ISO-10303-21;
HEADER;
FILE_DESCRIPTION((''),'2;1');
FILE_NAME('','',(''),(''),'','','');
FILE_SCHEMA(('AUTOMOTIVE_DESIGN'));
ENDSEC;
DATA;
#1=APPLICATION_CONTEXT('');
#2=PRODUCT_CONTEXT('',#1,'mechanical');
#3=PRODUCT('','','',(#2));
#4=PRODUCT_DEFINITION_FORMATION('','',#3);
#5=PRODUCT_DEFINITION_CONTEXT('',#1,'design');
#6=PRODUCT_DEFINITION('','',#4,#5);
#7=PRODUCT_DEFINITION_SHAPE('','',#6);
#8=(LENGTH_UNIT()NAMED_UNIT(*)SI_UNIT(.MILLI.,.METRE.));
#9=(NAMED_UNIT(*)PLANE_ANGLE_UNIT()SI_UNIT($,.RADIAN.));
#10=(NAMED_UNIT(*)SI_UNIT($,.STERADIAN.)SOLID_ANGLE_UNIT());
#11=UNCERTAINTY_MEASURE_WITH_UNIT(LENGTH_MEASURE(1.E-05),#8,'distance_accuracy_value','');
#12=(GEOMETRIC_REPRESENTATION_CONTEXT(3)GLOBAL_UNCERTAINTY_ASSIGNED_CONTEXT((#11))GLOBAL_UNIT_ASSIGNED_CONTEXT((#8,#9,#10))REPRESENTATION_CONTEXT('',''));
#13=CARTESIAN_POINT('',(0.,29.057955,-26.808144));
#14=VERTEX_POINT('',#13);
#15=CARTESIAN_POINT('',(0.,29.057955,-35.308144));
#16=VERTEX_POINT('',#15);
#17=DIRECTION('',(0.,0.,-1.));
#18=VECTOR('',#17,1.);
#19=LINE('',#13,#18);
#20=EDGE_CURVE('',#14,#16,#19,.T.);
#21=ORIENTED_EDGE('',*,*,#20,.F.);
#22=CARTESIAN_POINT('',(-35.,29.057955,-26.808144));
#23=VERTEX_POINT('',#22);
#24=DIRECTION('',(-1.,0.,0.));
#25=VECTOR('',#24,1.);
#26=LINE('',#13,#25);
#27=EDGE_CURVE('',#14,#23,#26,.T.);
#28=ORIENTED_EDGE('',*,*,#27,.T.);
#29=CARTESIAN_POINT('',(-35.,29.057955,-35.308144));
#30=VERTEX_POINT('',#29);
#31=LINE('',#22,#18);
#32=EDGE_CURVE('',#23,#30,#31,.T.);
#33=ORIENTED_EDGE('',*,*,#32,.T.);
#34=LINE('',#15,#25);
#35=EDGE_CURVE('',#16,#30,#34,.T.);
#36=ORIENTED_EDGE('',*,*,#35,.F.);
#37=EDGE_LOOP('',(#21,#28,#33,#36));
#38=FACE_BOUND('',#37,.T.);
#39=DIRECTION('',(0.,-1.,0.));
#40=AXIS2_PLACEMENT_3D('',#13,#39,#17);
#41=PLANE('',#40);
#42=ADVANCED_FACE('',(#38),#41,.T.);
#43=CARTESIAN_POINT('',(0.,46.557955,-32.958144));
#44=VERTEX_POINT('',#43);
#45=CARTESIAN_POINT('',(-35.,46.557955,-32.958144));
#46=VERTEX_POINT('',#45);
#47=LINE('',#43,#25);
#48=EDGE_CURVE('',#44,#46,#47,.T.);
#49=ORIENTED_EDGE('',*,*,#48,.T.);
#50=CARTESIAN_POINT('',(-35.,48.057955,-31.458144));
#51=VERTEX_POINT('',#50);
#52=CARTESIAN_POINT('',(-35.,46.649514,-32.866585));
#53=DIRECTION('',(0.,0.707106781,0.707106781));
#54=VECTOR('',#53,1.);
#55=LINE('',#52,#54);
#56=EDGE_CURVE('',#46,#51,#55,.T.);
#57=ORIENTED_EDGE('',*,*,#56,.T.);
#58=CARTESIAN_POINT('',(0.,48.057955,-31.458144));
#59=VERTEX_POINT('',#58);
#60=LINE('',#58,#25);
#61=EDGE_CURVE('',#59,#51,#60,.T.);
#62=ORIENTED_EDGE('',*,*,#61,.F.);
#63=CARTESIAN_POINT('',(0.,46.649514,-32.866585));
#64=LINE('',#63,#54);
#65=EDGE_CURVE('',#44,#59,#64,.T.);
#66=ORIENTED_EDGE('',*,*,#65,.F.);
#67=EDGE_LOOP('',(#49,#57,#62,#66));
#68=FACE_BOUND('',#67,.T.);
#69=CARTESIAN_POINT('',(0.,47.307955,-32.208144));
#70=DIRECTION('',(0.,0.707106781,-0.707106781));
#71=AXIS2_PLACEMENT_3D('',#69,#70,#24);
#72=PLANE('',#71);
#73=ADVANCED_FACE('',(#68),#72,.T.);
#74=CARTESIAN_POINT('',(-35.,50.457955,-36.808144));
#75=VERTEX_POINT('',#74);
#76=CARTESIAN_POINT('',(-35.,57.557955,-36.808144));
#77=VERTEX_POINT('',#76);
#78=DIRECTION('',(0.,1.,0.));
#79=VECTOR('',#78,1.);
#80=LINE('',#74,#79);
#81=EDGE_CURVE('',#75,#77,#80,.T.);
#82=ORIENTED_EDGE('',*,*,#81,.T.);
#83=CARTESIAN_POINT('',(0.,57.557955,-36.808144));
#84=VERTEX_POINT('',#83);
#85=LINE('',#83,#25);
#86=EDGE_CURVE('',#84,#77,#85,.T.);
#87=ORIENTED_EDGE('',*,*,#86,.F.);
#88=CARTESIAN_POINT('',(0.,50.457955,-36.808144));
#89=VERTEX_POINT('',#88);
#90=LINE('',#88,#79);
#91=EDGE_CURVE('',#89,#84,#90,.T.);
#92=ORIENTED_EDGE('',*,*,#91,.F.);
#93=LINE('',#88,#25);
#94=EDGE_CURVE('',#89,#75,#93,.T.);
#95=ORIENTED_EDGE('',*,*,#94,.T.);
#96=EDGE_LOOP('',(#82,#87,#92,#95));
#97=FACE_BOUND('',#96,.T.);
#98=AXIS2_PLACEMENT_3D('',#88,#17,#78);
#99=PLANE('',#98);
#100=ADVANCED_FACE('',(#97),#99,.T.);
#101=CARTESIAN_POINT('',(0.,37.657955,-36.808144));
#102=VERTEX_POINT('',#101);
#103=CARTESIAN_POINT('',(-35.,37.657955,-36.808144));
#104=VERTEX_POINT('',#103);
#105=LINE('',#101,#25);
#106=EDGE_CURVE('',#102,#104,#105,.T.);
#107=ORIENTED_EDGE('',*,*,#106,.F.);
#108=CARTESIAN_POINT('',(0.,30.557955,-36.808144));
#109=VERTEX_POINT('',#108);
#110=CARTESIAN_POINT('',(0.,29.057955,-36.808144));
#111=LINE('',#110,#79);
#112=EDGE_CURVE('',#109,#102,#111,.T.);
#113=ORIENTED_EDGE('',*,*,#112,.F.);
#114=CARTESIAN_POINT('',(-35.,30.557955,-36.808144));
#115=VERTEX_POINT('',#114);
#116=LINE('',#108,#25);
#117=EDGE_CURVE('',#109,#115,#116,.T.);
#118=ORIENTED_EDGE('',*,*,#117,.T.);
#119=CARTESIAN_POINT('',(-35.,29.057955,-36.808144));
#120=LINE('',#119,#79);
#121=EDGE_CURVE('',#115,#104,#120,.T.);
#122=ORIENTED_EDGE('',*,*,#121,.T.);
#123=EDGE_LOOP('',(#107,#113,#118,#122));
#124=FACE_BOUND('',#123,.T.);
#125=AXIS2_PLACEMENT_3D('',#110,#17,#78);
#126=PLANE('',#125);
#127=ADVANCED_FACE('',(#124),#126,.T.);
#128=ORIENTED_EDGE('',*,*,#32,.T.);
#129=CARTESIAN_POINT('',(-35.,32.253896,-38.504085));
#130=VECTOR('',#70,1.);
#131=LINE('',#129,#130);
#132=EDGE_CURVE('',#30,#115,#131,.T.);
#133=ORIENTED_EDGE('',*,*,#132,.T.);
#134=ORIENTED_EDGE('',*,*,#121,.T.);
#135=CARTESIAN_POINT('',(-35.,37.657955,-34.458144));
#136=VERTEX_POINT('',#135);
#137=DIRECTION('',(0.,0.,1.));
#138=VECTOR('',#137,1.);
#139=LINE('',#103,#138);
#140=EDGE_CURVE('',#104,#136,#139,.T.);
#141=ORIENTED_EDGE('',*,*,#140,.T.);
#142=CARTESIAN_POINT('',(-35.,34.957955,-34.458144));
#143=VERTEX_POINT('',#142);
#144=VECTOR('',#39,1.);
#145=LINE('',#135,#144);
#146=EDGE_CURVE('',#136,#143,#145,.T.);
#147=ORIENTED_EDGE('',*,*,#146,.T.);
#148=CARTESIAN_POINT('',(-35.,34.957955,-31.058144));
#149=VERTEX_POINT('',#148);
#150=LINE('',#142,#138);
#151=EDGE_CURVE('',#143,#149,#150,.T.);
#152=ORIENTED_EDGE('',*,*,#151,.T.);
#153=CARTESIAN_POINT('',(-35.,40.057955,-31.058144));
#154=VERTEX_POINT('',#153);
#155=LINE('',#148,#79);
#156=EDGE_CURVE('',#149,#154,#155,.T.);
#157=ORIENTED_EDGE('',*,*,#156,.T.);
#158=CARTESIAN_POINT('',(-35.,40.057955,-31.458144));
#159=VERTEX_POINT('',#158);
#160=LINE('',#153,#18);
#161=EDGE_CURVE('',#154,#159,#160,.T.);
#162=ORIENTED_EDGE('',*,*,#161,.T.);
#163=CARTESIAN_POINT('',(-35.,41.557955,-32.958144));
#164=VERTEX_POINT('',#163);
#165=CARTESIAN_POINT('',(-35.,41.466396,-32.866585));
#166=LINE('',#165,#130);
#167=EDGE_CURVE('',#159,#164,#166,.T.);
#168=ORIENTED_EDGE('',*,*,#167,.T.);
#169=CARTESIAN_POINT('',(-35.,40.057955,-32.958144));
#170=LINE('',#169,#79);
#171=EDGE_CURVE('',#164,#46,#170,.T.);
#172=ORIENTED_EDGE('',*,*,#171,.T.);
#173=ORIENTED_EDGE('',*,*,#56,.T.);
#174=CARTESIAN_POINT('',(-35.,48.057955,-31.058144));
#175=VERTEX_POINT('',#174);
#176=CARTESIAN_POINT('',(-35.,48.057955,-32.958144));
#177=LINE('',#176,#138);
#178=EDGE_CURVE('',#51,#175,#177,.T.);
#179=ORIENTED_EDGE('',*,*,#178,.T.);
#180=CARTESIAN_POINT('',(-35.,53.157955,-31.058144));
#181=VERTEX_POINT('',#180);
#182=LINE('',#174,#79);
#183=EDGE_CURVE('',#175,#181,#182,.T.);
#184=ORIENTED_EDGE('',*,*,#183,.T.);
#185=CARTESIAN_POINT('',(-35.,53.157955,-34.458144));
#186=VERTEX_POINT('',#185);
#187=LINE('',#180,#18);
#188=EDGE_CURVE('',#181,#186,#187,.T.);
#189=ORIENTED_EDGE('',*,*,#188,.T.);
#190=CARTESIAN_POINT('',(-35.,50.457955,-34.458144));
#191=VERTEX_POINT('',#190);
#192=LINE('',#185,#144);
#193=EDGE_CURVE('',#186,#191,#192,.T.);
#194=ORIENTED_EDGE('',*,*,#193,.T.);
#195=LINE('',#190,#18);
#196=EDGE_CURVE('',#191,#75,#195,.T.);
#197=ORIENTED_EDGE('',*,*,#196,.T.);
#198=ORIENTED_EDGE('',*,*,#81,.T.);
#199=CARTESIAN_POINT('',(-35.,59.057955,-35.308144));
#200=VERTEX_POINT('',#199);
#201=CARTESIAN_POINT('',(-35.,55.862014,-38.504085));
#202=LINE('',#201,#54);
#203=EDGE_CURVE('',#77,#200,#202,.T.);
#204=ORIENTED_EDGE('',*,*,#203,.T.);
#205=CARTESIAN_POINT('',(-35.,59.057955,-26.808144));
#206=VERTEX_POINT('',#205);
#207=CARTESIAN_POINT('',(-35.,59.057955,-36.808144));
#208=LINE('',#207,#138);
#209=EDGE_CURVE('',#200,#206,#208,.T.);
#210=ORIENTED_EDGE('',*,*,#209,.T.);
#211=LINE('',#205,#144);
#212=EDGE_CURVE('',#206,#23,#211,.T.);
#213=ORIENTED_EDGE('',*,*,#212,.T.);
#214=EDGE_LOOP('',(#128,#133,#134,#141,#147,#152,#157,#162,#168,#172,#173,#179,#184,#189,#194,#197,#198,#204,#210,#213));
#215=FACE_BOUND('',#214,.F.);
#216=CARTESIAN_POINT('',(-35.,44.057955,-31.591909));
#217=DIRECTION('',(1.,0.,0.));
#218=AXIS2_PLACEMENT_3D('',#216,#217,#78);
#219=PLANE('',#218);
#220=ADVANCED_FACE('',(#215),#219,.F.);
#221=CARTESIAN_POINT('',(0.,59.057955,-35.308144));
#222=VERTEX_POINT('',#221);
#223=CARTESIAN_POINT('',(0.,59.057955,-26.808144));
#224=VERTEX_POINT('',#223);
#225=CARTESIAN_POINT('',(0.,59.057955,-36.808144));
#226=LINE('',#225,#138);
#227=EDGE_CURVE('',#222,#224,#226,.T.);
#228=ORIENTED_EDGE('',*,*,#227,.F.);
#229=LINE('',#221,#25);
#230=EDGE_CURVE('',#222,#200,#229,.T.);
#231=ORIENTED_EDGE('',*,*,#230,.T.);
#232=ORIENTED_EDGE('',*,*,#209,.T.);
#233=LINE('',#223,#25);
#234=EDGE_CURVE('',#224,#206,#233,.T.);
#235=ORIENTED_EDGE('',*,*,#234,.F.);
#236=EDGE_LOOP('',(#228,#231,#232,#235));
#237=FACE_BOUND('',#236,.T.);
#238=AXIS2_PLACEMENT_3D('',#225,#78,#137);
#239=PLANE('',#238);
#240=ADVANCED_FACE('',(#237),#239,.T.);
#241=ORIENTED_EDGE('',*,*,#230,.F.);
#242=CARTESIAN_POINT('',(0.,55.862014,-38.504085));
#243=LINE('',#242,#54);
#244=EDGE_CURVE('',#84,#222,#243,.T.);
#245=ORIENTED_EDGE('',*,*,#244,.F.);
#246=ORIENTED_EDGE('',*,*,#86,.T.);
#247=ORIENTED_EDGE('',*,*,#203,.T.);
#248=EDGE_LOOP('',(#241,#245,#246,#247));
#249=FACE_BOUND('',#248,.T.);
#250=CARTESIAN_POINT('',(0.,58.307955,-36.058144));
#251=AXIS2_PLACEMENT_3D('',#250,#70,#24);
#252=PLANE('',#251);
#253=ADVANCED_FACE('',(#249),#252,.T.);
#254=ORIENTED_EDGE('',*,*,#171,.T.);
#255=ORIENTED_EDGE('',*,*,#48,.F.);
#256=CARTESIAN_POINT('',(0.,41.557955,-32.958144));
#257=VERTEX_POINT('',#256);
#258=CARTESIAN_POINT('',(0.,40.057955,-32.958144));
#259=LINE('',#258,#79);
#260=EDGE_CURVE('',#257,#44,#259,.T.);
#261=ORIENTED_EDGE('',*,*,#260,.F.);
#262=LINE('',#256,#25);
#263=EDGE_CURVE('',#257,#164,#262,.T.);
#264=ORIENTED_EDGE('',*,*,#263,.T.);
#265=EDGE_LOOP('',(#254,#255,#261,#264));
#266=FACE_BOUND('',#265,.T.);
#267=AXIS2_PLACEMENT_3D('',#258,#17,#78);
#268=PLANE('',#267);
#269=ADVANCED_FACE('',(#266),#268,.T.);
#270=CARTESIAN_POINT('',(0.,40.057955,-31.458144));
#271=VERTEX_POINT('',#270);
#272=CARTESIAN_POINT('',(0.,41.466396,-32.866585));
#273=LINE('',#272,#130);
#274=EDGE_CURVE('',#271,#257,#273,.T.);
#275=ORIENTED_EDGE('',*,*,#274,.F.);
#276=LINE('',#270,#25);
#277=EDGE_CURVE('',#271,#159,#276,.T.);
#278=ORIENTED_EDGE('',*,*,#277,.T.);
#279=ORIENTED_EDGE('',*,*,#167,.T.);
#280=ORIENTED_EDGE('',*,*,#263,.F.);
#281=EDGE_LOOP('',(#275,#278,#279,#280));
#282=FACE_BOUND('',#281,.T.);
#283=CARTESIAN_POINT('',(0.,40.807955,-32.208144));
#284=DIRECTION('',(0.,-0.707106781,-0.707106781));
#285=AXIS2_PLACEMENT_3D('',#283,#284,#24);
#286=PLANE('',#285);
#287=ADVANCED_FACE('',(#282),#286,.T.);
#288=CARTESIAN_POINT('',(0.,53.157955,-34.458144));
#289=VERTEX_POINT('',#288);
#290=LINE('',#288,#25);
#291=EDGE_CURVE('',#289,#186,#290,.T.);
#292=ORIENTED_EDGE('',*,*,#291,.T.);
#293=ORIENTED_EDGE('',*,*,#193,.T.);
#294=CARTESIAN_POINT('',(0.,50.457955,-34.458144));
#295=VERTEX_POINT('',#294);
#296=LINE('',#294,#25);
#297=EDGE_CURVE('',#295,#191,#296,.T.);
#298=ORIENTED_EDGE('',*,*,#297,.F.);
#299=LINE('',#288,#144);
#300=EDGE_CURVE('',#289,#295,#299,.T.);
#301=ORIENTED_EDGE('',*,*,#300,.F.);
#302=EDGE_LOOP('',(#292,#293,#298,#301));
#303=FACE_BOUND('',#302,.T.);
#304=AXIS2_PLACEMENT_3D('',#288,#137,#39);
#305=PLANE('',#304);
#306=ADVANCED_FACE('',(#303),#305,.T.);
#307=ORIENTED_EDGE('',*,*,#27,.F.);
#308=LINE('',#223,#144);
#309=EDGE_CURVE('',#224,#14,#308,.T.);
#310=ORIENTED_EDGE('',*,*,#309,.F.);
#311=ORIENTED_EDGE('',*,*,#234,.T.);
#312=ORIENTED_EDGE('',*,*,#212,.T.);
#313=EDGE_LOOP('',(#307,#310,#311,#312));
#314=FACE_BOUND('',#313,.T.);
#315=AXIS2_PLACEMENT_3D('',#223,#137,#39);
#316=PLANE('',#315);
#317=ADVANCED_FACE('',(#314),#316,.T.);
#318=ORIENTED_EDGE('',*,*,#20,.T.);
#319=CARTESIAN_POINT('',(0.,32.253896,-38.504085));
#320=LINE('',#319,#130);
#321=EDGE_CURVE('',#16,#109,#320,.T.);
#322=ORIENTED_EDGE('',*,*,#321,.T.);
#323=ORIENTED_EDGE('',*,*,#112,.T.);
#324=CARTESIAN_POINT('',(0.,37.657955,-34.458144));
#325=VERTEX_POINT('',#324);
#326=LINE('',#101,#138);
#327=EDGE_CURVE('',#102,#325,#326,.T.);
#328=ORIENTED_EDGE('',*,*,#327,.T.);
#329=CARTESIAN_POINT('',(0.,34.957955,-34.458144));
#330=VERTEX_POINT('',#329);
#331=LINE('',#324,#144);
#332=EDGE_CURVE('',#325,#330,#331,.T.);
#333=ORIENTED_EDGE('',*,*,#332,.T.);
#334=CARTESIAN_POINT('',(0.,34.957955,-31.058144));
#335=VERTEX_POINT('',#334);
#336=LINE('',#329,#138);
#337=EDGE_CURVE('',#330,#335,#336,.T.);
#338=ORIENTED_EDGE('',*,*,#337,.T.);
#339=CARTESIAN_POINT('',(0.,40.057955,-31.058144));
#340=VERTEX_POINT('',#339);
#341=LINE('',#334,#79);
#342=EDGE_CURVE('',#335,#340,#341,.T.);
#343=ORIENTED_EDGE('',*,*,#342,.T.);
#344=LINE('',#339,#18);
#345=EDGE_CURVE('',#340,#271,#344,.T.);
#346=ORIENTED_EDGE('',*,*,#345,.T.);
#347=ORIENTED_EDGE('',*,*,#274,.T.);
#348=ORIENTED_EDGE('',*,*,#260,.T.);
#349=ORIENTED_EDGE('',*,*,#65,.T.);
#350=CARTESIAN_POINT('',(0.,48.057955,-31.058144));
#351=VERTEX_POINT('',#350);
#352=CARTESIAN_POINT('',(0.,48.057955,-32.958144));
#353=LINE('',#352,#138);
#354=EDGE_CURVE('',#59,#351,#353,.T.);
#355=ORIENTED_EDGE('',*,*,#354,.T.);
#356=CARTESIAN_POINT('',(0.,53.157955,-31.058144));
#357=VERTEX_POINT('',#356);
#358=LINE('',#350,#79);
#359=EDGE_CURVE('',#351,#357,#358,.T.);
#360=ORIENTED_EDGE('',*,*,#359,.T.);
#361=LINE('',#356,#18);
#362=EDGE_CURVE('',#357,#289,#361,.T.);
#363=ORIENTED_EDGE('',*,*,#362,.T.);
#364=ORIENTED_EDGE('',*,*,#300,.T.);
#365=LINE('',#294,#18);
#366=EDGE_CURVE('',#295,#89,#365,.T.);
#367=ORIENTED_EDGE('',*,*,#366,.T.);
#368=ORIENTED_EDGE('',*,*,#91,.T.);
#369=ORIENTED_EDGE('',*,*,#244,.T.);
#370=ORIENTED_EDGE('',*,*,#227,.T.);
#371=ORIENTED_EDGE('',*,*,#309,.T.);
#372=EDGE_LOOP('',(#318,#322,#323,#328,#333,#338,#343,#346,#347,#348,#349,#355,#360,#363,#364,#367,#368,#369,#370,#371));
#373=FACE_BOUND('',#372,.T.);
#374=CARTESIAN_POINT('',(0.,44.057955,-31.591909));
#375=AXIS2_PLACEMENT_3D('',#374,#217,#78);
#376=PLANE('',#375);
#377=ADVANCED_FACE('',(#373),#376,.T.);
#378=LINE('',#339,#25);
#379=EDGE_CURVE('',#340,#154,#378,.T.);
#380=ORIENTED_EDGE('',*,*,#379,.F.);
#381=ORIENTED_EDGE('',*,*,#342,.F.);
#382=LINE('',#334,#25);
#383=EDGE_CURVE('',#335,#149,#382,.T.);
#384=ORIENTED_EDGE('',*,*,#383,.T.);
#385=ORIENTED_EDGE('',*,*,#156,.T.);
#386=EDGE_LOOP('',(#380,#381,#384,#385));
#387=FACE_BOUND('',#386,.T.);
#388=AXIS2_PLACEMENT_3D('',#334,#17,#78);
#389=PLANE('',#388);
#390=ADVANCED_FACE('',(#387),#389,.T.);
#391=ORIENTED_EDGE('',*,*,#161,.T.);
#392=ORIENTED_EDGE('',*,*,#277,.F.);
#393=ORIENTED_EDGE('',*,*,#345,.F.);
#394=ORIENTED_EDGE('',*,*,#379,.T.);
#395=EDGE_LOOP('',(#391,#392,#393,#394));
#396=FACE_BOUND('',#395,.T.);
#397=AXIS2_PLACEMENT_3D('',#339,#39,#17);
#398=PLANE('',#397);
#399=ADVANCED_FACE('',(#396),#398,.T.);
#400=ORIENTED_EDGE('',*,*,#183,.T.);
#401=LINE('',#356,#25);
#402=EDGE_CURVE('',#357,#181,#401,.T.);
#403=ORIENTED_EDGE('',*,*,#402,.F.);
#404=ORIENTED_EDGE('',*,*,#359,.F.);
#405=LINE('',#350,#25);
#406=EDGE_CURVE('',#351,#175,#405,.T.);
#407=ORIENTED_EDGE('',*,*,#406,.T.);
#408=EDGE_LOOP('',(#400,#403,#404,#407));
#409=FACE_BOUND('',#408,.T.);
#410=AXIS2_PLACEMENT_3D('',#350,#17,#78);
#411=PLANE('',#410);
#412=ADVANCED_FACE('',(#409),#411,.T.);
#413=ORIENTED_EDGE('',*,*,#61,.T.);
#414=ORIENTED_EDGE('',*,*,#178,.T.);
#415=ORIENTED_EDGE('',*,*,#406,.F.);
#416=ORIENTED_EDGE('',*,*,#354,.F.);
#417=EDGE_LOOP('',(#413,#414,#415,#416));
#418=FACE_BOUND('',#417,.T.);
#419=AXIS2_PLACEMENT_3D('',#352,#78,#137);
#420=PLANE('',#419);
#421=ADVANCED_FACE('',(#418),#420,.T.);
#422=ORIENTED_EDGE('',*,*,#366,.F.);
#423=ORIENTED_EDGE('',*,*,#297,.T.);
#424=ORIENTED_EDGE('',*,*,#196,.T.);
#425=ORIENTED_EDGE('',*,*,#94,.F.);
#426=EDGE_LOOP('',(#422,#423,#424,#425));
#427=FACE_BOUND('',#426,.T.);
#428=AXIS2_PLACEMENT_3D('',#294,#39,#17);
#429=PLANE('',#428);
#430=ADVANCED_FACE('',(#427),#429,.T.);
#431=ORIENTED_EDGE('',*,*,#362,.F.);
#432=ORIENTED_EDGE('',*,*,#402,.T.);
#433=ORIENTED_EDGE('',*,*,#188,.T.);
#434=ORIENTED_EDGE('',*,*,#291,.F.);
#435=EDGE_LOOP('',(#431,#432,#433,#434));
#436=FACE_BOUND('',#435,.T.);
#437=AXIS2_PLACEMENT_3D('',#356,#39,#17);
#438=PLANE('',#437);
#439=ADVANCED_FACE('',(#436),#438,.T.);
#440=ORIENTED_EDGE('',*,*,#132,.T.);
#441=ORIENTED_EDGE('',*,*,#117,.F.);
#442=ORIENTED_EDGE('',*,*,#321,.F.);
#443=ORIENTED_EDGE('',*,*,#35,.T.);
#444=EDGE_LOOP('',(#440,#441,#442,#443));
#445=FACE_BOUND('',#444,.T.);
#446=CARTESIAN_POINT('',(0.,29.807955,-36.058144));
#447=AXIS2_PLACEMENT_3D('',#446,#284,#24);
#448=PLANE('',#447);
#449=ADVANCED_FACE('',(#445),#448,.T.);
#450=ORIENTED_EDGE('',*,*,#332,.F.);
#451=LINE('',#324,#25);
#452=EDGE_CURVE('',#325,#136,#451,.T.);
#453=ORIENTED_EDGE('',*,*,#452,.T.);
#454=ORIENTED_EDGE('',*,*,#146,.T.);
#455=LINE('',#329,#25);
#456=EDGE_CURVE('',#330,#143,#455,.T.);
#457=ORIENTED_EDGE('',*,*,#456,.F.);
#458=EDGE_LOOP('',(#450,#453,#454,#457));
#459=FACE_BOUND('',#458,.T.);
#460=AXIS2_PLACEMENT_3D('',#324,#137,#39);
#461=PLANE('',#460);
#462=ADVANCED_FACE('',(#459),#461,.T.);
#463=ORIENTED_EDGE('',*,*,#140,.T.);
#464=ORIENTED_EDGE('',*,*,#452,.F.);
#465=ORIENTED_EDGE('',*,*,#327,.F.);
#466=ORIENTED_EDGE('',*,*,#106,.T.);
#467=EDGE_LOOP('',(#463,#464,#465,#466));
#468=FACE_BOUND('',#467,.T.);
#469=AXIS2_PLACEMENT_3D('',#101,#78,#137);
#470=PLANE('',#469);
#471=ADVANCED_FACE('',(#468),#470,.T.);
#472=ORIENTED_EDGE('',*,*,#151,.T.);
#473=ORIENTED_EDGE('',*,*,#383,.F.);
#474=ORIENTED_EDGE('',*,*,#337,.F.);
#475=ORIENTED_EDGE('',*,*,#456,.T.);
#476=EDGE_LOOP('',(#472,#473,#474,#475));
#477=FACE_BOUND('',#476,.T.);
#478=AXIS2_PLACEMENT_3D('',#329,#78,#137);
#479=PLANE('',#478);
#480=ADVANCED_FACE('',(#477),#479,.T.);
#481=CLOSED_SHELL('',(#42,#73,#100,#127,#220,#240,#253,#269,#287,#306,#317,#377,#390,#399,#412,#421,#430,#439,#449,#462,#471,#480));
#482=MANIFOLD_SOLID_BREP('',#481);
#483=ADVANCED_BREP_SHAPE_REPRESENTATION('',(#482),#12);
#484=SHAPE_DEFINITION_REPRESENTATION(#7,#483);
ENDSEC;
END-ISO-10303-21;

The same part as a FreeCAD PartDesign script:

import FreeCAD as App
import Part
import Sketcher


def edges_at(feature, points):
    """Names of the edges that pass closest to the given points."""
    edges = feature.Shape.Edges
    near = lambda p: min(range(len(edges)), key=lambda i: edges[i].distToShape(Part.Vertex(*p))[0])
    return sorted({f"Edge{near(p) + 1}" for p in points})


def add_polygon(sketch, points):
    """Adds a closed chain of lines whose ends are joined by coincident constraints."""
    first, n = sketch.GeometryCount, len(points)
    for a, b in zip(points, points[1:] + points[:1]):
        sketch.addGeometry(Part.LineSegment(App.Vector(*a, 0), App.Vector(*b, 0)), False)
    for i in range(n):
        sketch.addConstraint(Sketcher.Constraint("Coincident", first + i, 2, first + (i + 1) % n, 1))

doc = App.newDocument("Part")
params = doc.addObject("Spreadsheet::Sheet", "Params")
for row, (alias, value) in enumerate([
    ("sketch1_width", "8 mm"),
    ("sketch1_width2", "30 mm"),
    ("sketch1_height", "10 mm"),
    ("sketch1_width3", "8.6 mm"),
    ("sketch1_width4", "2.7 mm"),
    ("pad1_length", "35 mm"),
    ("chamfer_size", "1.5 mm"),
], start=1):
    params.set(f"A{row}", alias)
    params.set(f"B{row}", "=" + value)
    params.setAlias(f"B{row}", alias)

body = doc.addObject("PartDesign::Body", "Body")

# Sketch on YZ plane
sketch1 = body.newObject("Sketcher::SketchObject", "Sketch")
sketch1.AttachmentSupport = (doc.getObject("YZ_Plane"), [""])
sketch1.MapMode = "FlatFace"
add_polygon(sketch1, [(29.1, -26.8), (29.1, -36.8), (37.7, -36.8), (37.7, -34.5), (35, -34.5), (35, -31.1), (40.1, -31.1), (40.1, -33), (48.1, -33), (48.1, -31.1), (53.2, -31.1), (53.2, -34.5), (50.5, -34.5), (50.5, -36.8), (59.1, -36.8), (59.1, -26.8)])  # lines 0-15
sketch1.addConstraint(Sketcher.Constraint("Vertical", 0))
sketch1.addConstraint(Sketcher.Constraint("Horizontal", 1))
sketch1.addConstraint(Sketcher.Constraint("Vertical", 2))
sketch1.addConstraint(Sketcher.Constraint("Horizontal", 3))
sketch1.addConstraint(Sketcher.Constraint("Vertical", 4))
sketch1.addConstraint(Sketcher.Constraint("Horizontal", 5))
sketch1.addConstraint(Sketcher.Constraint("Vertical", 6))
sketch1.addConstraint(Sketcher.Constraint("Horizontal", 7))
sketch1.addConstraint(Sketcher.Constraint("Vertical", 8))
sketch1.addConstraint(Sketcher.Constraint("Horizontal", 9))
sketch1.addConstraint(Sketcher.Constraint("Vertical", 10))
sketch1.addConstraint(Sketcher.Constraint("Horizontal", 11))
sketch1.addConstraint(Sketcher.Constraint("Vertical", 12))
sketch1.addConstraint(Sketcher.Constraint("Horizontal", 13))
sketch1.addConstraint(Sketcher.Constraint("Vertical", 14))
sketch1.addConstraint(Sketcher.Constraint("Horizontal", 15))
sketch1.addConstraint(Sketcher.Constraint("Horizontal", 5, 2, 8, 2))
sketch1.addConstraint(Sketcher.Constraint("Horizontal", 3, 2, 10, 2))
sketch1.addConstraint(Sketcher.Constraint("Horizontal", 1, 2, 12, 2))
sketch1.addConstraint(Sketcher.Constraint("Equal", 5, 9))
sketch1.addConstraint(Sketcher.Constraint("Equal", 3, 11))
sketch1.addConstraint(Sketcher.Constraint("Equal", 1, 13))
sketch1.addConstraint(Sketcher.Constraint("DistanceX", 7, 1, 7, 2, 8.0))
sketch1.addConstraint(Sketcher.Constraint("DistanceX", 15, 2, 15, 1, 30.0))
sketch1.addConstraint(Sketcher.Constraint("DistanceY", 0, 2, 0, 1, 10.0))
sketch1.addConstraint(Sketcher.Constraint("DistanceX", 1, 1, 1, 2, 8.6))
sketch1.addConstraint(Sketcher.Constraint("DistanceX", 3, 2, 3, 1, 2.7))
sketch1.addConstraint(Sketcher.Constraint("DistanceY", 4, 1, 4, 2, 3.4))
sketch1.addConstraint(Sketcher.Constraint("DistanceY", 6, 2, 6, 1, 1.9))
sketch1.addConstraint(Sketcher.Constraint("DistanceY", 2, 1, 2, 2, 2.35))
sketch1.addConstraint(Sketcher.Constraint("DistanceX", -1, 1, 0, 2, 29.057955))
sketch1.addConstraint(Sketcher.Constraint("DistanceY", 0, 2, -1, 1, 36.808144))
sketch1.setExpression("Constraints[38]", "Params.sketch1_width")
sketch1.setExpression("Constraints[39]", "Params.sketch1_width2")
sketch1.setExpression("Constraints[40]", "Params.sketch1_height")
sketch1.setExpression("Constraints[41]", "Params.sketch1_width3")
sketch1.setExpression("Constraints[42]", "Params.sketch1_width4")
pad1 = body.newObject("PartDesign::Pad", "Pad")
pad1.Profile = sketch1
pad1.setExpression("Length", "Params.pad1_length")
pad1.Reversed = True
doc.recompute()

chamfer = body.newObject("PartDesign::Chamfer", "Chamfer")
chamfer.Base = (pad1, edges_at(pad1, [
    (-17.5, 59.058, -36.808),
    (-17.5, 48.058, -32.958),
    (-17.5, 40.058, -32.958),
    (-17.5, 29.058, -36.808),
]))
chamfer.setExpression("Size", "Params.chamfer_size")

doc.recompute()
